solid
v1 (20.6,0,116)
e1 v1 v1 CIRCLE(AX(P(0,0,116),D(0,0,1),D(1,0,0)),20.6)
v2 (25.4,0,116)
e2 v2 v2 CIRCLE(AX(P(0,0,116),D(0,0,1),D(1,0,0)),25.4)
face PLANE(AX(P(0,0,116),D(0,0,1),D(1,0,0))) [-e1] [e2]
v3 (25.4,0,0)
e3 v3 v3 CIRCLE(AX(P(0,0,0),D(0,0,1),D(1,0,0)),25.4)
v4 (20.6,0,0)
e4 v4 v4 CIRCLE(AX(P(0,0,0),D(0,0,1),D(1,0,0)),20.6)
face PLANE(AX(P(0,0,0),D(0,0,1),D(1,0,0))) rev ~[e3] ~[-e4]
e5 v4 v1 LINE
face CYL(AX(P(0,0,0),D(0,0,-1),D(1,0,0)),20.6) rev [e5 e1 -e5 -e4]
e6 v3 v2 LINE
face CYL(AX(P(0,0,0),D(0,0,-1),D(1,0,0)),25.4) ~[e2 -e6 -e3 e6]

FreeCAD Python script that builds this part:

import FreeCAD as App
import Part
import Sketcher
Q = App.Units.Quantity

doc = App.newDocument("Part")
body = doc.addObject("PartDesign::Body", "Body")

sketch1 = body.newObject("Sketcher::SketchObject", "Sketch")
sketch1.AttachmentSupport = (doc.getObject("XY_Plane"), [""])
sketch1.MapMode = "FlatFace"
sketch1.addGeometry(Part.Circle(App.Vector(0, 0, 0), App.Vector(0, 0, 1), 25.4), False)
sketch1.addGeometry(Part.Circle(App.Vector(0, 0, 0), App.Vector(0, 0, 1), 20.6), False)
sketch1.addConstraint(Sketcher.Constraint("Coincident", 0, 3, -1, 1))
sketch1.addConstraint(Sketcher.Constraint("Coincident", 1, 3, -1, 1))
sketch1.addConstraint(Sketcher.Constraint("Diameter", 0, Q("50.8 mm")))
sketch1.addConstraint(Sketcher.Constraint("Diameter", 1, Q("41.2 mm")))
pad1 = body.newObject("PartDesign::Pad", "Pad")
pad1.Profile = sketch1
pad1.Length = 116

doc.recompute()
